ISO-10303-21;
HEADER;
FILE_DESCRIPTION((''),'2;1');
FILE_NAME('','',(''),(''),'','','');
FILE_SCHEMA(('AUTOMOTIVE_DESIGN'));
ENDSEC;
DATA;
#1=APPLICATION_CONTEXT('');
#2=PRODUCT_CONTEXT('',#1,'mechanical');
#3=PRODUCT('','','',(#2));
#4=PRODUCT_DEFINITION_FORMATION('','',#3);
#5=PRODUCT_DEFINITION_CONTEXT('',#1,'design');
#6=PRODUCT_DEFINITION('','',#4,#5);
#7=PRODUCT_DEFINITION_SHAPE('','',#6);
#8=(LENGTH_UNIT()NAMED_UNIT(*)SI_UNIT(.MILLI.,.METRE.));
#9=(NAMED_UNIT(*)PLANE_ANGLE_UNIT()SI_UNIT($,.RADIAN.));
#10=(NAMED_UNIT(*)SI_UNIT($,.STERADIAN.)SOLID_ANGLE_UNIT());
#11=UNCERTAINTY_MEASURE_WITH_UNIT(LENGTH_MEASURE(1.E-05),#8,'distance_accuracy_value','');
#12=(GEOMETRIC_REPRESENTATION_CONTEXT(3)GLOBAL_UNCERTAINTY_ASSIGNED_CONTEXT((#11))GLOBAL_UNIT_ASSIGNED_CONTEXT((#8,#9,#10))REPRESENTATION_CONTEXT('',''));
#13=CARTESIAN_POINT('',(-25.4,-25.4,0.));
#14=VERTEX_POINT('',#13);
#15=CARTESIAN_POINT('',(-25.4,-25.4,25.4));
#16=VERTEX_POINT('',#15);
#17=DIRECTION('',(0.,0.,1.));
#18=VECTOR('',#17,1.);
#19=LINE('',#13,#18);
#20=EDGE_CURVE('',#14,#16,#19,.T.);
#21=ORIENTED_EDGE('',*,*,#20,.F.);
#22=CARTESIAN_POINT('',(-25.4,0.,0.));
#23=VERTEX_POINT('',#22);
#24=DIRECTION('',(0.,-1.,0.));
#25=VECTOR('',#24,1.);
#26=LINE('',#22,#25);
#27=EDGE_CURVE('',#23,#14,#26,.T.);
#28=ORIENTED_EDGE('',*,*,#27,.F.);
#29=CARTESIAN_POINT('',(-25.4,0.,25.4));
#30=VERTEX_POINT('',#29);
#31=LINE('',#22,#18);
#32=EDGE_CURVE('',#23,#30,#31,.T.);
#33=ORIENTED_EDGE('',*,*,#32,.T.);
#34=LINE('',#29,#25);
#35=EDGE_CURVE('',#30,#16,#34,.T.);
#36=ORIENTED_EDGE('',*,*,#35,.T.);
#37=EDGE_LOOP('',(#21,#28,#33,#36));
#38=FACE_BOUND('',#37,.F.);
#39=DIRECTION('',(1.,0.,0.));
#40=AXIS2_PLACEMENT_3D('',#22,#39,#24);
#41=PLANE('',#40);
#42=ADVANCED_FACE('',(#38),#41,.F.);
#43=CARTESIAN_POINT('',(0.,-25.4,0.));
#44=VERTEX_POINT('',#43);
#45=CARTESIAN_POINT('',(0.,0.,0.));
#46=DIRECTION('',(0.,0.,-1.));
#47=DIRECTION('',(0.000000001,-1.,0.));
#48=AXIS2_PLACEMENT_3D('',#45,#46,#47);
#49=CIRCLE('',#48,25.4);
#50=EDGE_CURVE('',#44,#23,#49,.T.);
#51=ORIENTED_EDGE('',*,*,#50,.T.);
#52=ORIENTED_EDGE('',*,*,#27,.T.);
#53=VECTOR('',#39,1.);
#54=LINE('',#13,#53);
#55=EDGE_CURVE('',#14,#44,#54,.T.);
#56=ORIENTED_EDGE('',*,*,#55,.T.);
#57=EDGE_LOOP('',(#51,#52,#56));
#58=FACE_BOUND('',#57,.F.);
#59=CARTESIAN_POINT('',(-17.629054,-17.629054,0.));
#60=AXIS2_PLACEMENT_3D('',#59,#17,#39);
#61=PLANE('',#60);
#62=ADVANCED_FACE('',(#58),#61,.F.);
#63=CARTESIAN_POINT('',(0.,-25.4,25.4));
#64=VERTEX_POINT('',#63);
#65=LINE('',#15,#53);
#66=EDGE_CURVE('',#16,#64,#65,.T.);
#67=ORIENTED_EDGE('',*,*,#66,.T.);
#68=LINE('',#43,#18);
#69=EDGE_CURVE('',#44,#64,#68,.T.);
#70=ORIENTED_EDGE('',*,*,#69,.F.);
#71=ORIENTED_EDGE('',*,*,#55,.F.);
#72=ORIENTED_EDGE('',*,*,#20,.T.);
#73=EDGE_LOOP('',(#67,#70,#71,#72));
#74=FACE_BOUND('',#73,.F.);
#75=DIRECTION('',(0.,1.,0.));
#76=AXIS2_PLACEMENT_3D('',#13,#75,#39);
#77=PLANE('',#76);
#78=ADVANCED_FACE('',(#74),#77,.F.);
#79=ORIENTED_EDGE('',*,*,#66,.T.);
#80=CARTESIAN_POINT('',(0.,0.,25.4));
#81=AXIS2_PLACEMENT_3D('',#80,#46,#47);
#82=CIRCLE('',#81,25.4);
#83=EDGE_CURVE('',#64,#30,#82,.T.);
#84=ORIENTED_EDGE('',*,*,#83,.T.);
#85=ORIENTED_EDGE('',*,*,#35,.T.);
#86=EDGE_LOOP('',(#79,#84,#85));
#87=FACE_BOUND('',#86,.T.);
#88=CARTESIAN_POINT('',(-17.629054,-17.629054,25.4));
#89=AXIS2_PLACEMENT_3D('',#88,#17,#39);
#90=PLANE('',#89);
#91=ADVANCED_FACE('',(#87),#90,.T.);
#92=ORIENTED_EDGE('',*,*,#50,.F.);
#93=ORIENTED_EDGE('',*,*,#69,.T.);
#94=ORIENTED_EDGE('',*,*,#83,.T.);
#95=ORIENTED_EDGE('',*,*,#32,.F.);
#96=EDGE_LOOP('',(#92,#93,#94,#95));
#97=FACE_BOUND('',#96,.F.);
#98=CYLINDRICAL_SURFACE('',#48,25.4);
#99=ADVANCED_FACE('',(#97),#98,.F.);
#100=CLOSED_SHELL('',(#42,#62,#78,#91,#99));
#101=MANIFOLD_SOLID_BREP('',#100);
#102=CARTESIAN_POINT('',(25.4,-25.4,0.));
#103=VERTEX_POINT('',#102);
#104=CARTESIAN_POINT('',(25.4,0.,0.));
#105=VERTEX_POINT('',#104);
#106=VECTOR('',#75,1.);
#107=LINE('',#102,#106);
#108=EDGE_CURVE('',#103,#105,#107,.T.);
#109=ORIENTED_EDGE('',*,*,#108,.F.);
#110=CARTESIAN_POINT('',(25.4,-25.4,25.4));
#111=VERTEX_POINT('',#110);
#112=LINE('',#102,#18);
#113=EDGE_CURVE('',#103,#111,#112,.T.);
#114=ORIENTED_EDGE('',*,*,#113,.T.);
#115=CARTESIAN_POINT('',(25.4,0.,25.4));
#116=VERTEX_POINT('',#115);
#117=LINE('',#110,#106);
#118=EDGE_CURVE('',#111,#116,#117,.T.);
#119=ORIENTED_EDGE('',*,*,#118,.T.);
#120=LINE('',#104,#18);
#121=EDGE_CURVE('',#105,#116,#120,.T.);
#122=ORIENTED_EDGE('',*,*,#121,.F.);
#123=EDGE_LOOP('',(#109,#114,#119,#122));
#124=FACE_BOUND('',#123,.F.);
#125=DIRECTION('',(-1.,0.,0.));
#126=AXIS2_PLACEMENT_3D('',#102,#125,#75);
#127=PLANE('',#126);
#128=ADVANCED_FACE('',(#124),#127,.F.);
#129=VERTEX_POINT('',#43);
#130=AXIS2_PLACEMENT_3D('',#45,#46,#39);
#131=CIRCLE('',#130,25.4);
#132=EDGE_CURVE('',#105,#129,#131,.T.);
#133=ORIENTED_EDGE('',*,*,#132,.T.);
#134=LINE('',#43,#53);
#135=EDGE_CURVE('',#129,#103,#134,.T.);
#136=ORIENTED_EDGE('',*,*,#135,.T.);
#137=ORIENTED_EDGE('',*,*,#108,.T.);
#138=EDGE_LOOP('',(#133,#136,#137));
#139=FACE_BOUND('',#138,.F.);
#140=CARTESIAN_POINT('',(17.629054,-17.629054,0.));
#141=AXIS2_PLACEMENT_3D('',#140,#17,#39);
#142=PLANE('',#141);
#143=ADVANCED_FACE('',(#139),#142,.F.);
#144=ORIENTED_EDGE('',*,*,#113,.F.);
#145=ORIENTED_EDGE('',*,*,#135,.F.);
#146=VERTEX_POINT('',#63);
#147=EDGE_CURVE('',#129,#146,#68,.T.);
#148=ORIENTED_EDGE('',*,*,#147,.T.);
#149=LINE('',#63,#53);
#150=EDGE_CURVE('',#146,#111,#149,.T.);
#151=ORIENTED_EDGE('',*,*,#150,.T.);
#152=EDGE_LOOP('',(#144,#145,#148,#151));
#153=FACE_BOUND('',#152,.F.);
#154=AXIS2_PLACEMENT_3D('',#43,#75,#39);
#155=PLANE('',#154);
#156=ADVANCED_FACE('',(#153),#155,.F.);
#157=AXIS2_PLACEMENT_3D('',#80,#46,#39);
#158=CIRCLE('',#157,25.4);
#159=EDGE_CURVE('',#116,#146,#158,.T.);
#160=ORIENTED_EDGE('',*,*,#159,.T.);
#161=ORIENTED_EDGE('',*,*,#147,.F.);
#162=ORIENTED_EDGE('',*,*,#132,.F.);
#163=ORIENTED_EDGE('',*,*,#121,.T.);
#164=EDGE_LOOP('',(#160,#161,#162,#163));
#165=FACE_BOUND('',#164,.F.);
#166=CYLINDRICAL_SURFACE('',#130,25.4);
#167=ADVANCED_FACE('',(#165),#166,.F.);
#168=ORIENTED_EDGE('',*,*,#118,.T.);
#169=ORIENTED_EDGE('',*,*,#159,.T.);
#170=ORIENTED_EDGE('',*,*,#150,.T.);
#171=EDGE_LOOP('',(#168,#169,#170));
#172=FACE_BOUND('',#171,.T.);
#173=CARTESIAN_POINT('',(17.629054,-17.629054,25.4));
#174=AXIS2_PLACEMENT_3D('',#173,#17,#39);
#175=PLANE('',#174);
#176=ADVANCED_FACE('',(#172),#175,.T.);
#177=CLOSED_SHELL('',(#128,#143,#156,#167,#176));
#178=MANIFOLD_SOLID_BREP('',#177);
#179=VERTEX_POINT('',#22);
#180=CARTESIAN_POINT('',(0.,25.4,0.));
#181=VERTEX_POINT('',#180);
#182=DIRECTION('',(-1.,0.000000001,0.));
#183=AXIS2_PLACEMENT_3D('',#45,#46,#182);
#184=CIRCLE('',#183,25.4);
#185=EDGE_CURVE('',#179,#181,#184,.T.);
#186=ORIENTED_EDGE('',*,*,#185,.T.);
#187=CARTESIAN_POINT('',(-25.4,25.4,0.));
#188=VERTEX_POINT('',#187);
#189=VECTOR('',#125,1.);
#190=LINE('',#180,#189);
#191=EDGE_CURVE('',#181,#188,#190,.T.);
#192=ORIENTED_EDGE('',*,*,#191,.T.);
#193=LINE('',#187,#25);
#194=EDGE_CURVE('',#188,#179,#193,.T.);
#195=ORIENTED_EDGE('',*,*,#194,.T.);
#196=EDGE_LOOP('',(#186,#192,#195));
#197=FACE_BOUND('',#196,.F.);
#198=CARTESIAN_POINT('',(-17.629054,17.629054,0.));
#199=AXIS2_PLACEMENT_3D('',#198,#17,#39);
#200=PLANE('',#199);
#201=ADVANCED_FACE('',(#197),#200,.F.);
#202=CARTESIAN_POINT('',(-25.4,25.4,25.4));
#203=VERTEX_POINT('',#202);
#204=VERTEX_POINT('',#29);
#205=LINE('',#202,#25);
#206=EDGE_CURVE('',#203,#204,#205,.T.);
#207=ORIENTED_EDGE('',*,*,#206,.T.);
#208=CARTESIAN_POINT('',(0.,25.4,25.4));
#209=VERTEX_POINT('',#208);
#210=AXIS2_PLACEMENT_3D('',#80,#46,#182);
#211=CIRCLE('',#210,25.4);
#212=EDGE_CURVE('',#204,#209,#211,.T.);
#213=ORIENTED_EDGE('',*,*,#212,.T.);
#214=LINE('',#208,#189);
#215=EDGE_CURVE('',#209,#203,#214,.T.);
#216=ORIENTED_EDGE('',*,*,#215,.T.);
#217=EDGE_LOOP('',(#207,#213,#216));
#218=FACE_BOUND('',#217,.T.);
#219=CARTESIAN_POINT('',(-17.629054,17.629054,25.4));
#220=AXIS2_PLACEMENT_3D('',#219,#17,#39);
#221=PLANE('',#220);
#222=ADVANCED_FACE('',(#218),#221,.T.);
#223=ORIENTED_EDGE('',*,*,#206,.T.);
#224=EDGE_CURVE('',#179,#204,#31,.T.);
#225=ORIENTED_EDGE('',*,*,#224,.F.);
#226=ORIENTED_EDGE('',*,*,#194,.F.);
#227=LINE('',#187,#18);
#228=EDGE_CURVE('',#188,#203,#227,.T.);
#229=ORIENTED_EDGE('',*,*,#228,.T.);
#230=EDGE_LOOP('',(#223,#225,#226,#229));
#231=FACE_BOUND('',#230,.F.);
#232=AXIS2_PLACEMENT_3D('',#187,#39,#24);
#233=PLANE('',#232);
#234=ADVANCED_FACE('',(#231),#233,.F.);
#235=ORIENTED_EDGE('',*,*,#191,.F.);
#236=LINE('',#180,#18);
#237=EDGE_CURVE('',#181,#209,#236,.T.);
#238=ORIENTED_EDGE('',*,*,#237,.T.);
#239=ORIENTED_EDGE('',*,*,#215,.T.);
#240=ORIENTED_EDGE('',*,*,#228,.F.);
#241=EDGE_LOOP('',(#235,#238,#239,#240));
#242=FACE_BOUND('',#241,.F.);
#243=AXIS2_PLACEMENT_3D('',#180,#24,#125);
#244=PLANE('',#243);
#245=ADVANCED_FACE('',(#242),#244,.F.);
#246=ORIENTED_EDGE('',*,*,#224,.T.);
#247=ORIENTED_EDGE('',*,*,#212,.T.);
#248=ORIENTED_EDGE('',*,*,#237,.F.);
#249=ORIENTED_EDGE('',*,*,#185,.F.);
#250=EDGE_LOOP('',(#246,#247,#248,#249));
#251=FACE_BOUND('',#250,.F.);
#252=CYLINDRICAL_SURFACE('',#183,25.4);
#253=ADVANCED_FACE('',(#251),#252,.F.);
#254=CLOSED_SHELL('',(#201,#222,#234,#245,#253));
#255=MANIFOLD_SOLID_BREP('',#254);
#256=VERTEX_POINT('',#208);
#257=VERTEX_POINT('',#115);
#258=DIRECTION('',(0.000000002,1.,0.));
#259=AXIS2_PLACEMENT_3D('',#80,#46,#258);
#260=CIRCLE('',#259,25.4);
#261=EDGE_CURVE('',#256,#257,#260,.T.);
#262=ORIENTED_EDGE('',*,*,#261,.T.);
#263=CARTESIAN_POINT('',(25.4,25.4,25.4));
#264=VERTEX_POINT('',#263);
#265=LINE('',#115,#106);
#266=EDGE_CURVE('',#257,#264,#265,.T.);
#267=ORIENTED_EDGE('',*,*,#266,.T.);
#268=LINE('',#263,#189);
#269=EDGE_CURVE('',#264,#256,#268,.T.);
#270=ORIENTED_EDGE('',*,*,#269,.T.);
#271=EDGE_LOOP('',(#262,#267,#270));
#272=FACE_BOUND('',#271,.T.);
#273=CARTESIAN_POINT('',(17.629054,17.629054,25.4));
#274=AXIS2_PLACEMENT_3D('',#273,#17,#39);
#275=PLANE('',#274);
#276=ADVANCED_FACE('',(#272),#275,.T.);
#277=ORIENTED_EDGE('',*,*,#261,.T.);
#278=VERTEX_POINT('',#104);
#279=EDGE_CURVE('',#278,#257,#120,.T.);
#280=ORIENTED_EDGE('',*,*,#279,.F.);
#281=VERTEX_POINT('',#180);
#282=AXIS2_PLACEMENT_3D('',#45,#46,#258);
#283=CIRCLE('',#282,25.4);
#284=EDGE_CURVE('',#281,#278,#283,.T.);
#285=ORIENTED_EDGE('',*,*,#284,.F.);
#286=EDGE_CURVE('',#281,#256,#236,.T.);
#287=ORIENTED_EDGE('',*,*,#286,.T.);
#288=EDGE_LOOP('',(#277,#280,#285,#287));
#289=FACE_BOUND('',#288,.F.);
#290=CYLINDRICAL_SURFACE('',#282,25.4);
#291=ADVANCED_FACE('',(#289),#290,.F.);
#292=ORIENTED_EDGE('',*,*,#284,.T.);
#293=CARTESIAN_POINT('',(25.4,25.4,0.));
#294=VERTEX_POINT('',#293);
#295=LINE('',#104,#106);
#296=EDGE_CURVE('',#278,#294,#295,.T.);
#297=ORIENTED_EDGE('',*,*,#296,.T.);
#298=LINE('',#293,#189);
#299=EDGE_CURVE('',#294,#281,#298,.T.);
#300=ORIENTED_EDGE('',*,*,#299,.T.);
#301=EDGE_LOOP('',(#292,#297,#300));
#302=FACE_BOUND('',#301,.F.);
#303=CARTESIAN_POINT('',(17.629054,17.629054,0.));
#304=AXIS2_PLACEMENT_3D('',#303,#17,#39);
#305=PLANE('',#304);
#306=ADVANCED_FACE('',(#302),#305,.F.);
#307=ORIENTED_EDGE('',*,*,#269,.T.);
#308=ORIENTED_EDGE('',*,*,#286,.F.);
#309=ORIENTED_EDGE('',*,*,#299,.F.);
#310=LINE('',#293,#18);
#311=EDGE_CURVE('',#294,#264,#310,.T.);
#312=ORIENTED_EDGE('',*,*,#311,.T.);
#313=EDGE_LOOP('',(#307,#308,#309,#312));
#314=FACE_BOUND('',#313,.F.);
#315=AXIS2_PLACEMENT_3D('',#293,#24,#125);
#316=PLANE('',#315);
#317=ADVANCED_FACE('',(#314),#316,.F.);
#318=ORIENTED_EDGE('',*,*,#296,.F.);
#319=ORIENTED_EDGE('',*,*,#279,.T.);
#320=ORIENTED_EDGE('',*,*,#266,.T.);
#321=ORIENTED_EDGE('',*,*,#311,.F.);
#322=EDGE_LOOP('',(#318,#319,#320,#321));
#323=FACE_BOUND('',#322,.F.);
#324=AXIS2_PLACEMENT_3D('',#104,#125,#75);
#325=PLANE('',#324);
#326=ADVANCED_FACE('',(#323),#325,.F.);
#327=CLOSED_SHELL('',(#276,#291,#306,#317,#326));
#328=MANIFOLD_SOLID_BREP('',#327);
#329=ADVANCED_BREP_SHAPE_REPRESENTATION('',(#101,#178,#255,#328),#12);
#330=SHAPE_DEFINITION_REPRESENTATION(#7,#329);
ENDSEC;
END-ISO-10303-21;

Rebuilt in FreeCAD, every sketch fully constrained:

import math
import FreeCAD as App
import Part
import Sketcher

V = App.Vector
Q = App.Units.Quantity

doc = App.newDocument("Part")
body = doc.addObject("PartDesign::Body", "Body")

# Sketch on XY plane
sketch1 = body.newObject("Sketcher::SketchObject", "Sketch")
sketch1.AttachmentSupport = (doc.getObject("XY_Plane"), [""])
sketch1.MapMode = "FlatFace"
sketch1.addGeometry(Part.ArcOfCircle(Part.Circle(V(0, 0, 0), V(0, 0, 1), 25.4), math.radians(0), math.radians(90)), False)
sketch1.addGeometry(Part.LineSegment(V(25.4, 0, 0), V(25.4, 25.4, 0)), False)
sketch1.addGeometry(Part.LineSegment(V(25.4, 25.4, 0), V(0, 25.4, 0)), False)
sketch1.addConstraint(Sketcher.Constraint("Tangent", 0, 1, 1, 1))
sketch1.addConstraint(Sketcher.Constraint("Coincident", 1, 2, 2, 1))
sketch1.addConstraint(Sketcher.Constraint("Tangent", 2, 2, 0, 2))
sketch1.addConstraint(Sketcher.Constraint("Vertical", 1))
sketch1.addConstraint(Sketcher.Constraint("Horizontal", 2))
sketch1.addConstraint(Sketcher.Constraint("Coincident", 0, 3, -1, 1))
sketch1.addConstraint(Sketcher.Constraint("Radius", 0, Q("1 in")))
pad1 = body.newObject("PartDesign::Pad", "Pad")
pad1.Profile = sketch1
pad1.Length = Q("1 in")
body2 = doc.addObject("PartDesign::Body", "Body001")

# Sketch on XY plane
sketch2 = body2.newObject("Sketcher::SketchObject", "Sketch001")
sketch2.AttachmentSupport = (doc.getObject("XY_Plane001"), [""])
sketch2.MapMode = "FlatFace"
sketch2.addGeometry(Part.ArcOfCircle(Part.Circle(V(0, 0, 0), V(0, 0, 1), 25.4), math.radians(90), math.radians(180)), False)
sketch2.addGeometry(Part.LineSegment(V(0, 25.4, 0), V(-25.4, 25.4, 0)), False)
sketch2.addGeometry(Part.LineSegment(V(-25.4, 25.4, 0), V(-25.4, 0, 0)), False)
sketch2.addConstraint(Sketcher.Constraint("Tangent", 0, 1, 1, 1))
sketch2.addConstraint(Sketcher.Constraint("Coincident", 1, 2, 2, 1))
sketch2.addConstraint(Sketcher.Constraint("Tangent", 2, 2, 0, 2))
sketch2.addConstraint(Sketcher.Constraint("Horizontal", 1))
sketch2.addConstraint(Sketcher.Constraint("Vertical", 2))
sketch2.addConstraint(Sketcher.Constraint("Coincident", 0, 3, -1, 1))
sketch2.addConstraint(Sketcher.Constraint("Radius", 0, Q("1 in")))
pad2 = body2.newObject("PartDesign::Pad", "Pad001")
pad2.Profile = sketch2
pad2.Length = Q("1 in")
body3 = doc.addObject("PartDesign::Body", "Body002")

# Sketch on XY plane
sketch3 = body3.newObject("Sketcher::SketchObject", "Sketch002")
sketch3.AttachmentSupport = (doc.getObject("XY_Plane002"), [""])
sketch3.MapMode = "FlatFace"
sketch3.addGeometry(Part.LineSegment(V(-25.4, -25.4, 0), V(0, -25.4, 0)), False)
sketch3.addGeometry(Part.ArcOfCircle(Part.Circle(V(0, 0, 0), V(0, 0, 1), 25.4), math.radians(180), math.radians(270)), False)
sketch3.addGeometry(Part.LineSegment(V(-25.4, 0, 0), V(-25.4, -25.4, 0)), False)
sketch3.addConstraint(Sketcher.Constraint("Tangent", 0, 2, 1, 2))
sketch3.addConstraint(Sketcher.Constraint("Tangent", 1, 1, 2, 1))
sketch3.addConstraint(Sketcher.Constraint("Coincident", 2, 2, 0, 1))
sketch3.addConstraint(Sketcher.Constraint("Horizontal", 0))
sketch3.addConstraint(Sketcher.Constraint("Vertical", 2))
sketch3.addConstraint(Sketcher.Constraint("Coincident", 1, 3, -1, 1))
sketch3.addConstraint(Sketcher.Constraint("Radius", 1, Q("1 in")))
pad3 = body3.newObject("PartDesign::Pad", "Pad002")
pad3.Profile = sketch3
pad3.Length = Q("1 in")
body4 = doc.addObject("PartDesign::Body", "Body003")

# Sketch on XY plane
sketch4 = body4.newObject("Sketcher::SketchObject", "Sketch003")
sketch4.AttachmentSupport = (doc.getObject("XY_Plane003"), [""])
sketch4.MapMode = "FlatFace"
sketch4.addGeometry(Part.LineSegment(V(25.4, -25.4, 0), V(25.4, 0, 0)), False)
sketch4.addGeometry(Part.ArcOfCircle(Part.Circle(V(0, 0, 0), V(0, 0, 1), 25.4), math.radians(-90), math.radians(0)), False)
sketch4.addGeometry(Part.LineSegment(V(0, -25.4, 0), V(25.4, -25.4, 0)), False)
sketch4.addConstraint(Sketcher.Constraint("Tangent", 0, 2, 1, 2))
sketch4.addConstraint(Sketcher.Constraint("Tangent", 1, 1, 2, 1))
sketch4.addConstraint(Sketcher.Constraint("Coincident", 2, 2, 0, 1))
sketch4.addConstraint(Sketcher.Constraint("Vertical", 0))
sketch4.addConstraint(Sketcher.Constraint("Horizontal", 2))
sketch4.addConstraint(Sketcher.Constraint("Coincident", 1, 3, -1, 1))
sketch4.addConstraint(Sketcher.Constraint("Radius", 1, Q("1 in")))
pad4 = body4.newObject("PartDesign::Pad", "Pad003")
pad4.Profile = sketch4
pad4.Length = Q("1 in")

doc.recompute()
